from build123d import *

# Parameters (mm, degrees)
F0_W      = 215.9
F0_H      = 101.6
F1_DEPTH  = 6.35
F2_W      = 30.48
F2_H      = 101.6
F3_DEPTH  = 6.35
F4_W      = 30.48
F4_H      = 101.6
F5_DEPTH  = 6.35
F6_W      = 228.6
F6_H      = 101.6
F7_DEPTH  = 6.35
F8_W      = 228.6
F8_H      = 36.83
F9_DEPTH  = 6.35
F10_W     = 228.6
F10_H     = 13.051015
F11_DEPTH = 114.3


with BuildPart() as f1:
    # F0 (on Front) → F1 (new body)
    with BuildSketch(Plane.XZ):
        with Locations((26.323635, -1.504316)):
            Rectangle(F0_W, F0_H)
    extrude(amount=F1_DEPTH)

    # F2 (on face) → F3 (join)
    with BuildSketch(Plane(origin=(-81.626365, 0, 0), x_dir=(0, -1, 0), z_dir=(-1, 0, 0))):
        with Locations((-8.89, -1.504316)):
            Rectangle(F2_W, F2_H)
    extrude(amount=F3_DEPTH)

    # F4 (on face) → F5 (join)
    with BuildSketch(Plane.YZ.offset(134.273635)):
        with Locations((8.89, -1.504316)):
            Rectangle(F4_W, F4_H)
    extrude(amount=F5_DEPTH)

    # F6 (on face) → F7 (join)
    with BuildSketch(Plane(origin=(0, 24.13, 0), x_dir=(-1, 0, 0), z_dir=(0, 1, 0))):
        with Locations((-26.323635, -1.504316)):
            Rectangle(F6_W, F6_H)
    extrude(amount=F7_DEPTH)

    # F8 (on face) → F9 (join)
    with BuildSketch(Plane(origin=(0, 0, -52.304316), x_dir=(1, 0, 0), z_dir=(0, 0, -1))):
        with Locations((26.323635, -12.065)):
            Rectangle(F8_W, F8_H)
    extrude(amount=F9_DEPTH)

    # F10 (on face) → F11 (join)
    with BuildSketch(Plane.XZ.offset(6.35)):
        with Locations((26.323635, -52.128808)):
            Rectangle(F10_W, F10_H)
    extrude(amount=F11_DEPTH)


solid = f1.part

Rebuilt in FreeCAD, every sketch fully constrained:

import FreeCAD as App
import Part
import Sketcher
Q = App.Units.Quantity

doc = App.newDocument("Part")
body = doc.addObject("PartDesign::Body", "Body")

sketch1 = body.newObject("Sketcher::SketchObject", "Sketch")
sketch1.AttachmentSupport = (doc.getObject("XZ_Plane"), [""])
sketch1.MapMode = "FlatFace"
sketch1.addGeometry([
    Part.LineSegment(App.Vector(-82, 49, 0), App.Vector(-82, -52, 0)),
    Part.LineSegment(App.Vector(-82, -52, 0), App.Vector(134, -52, 0)),
    Part.LineSegment(App.Vector(134, -52, 0), App.Vector(134, 49, 0)),
    Part.LineSegment(App.Vector(134, 49, 0), App.Vector(-82, 49, 0)),
], False)
sketch1.addConstraint([
    Sketcher.Constraint("Coincident", 0, 2, 1, 1),
    Sketcher.Constraint("Coincident", 1, 2, 2, 1),
    Sketcher.Constraint("Coincident", 2, 2, 3, 1),
    Sketcher.Constraint("Coincident", 3, 2, 0, 1),
    Sketcher.Constraint("Vertical", 0),
    Sketcher.Constraint("Horizontal", 1),
    Sketcher.Constraint("Vertical", 2),
    Sketcher.Constraint("Horizontal", 3),
    Sketcher.Constraint("DistanceY", 0, 2, 0, 1, Q("4 in")),
    Sketcher.Constraint("DistanceX", 1, 1, 1, 2, Q("8.5 in")),
    Sketcher.Constraint("DistanceX", 0, 2, -1, 1, Q("81.626365 mm")),
    Sketcher.Constraint("DistanceY", 0, 2, -1, 1, Q("52.304316 mm")),
])
pad1 = body.newObject("PartDesign::Pad", "Pad")
pad1.Profile = sketch1
pad1.Length = Q("0.25 in")

sketch2 = body.newObject("Sketcher::SketchObject", "Sketch001")
sketch2.AttachmentSupport = (doc.getObject("YZ_Plane"), [""])
sketch2.MapMode = "FlatFace"
sketch2.AttachmentOffset = App.Placement(App.Vector(0, 0, -81.626365), App.Rotation())
sketch2.addGeometry([
    Part.LineSegment(App.Vector(24, 49, 0), App.Vector(24, -52, 0)),
    Part.LineSegment(App.Vector(24, -52, 0), App.Vector(-6, -52, 0)),
    Part.LineSegment(App.Vector(-6, -52, 0), App.Vector(-6, 49, 0)),
    Part.LineSegment(App.Vector(-6, 49, 0), App.Vector(24, 49, 0)),
], False)
sketch2.addConstraint([
    Sketcher.Constraint("Coincident", 0, 2, 1, 1),
    Sketcher.Constraint("Coincident", 1, 2, 2, 1),
    Sketcher.Constraint("Coincident", 2, 2, 3, 1),
    Sketcher.Constraint("Coincident", 3, 2, 0, 1),
    Sketcher.Constraint("Vertical", 0),
    Sketcher.Constraint("Horizontal", 1),
    Sketcher.Constraint("Vertical", 2),
    Sketcher.Constraint("Horizontal", 3),
    Sketcher.Constraint("DistanceY", 0, 2, 0, 1, Q("4 in")),
    Sketcher.Constraint("DistanceX", 1, 2, 1, 1, Q("1.2 in")),
    Sketcher.Constraint("DistanceX", -1, 1, 0, 2, Q("0.95 in")),
    Sketcher.Constraint("DistanceY", 0, 2, -1, 1, Q("52.304316 mm")),
])
pad2 = body.newObject("PartDesign::Pad", "Pad001")
pad2.Profile = sketch2
pad2.Length = Q("0.25 in")
pad2.Reversed = True

sketch3 = body.newObject("Sketcher::SketchObject", "Sketch002")
sketch3.AttachmentSupport = (doc.getObject("YZ_Plane"), [""])
sketch3.MapMode = "FlatFace"
sketch3.AttachmentOffset = App.Placement(App.Vector(0, 0, 134.273635), App.Rotation())
sketch3.addGeometry([
    Part.LineSegment(App.Vector(-6, 49, 0), App.Vector(-6, -52, 0)),
    Part.LineSegment(App.Vector(-6, -52, 0), App.Vector(24, -52, 0)),
    Part.LineSegment(App.Vector(24, -52, 0), App.Vector(24, 49, 0)),
    Part.LineSegment(App.Vector(24, 49, 0), App.Vector(-6, 49, 0)),
], False)
sketch3.addConstraint([
    Sketcher.Constraint("Coincident", 0, 2, 1, 1),
    Sketcher.Constraint("Coincident", 1, 2, 2, 1),
    Sketcher.Constraint("Coincident", 2, 2, 3, 1),
    Sketcher.Constraint("Coincident", 3, 2, 0, 1),
    Sketcher.Constraint("Vertical", 0),
    Sketcher.Constraint("Horizontal", 1),
    Sketcher.Constraint("Vertical", 2),
    Sketcher.Constraint("Horizontal", 3),
    Sketcher.Constraint("DistanceY", 0, 2, 0, 1, Q("4 in")),
    Sketcher.Constraint("DistanceX", 1, 1, 1, 2, Q("1.2 in")),
    Sketcher.Constraint("DistanceX", 0, 2, -1, 1, Q("0.25 in")),
    Sketcher.Constraint("DistanceY", 0, 2, -1, 1, Q("52.304316 mm")),
])
pad3 = body.newObject("PartDesign::Pad", "Pad002")
pad3.Profile = sketch3
pad3.Length = Q("0.25 in")

sketch4 = body.newObject("Sketcher::SketchObject", "Sketch003")
sketch4.AttachmentSupport = (doc.getObject("XZ_Plane"), [""])
sketch4.MapMode = "FlatFace"
sketch4.AttachmentOffset = App.Placement(App.Vector(0, 0, -0.95 * 25.4), App.Rotation())
sketch4.addGeometry([
    Part.LineSegment(App.Vector(141, 49, 0), App.Vector(141, -52, 0)),
    Part.LineSegment(App.Vector(141, -52, 0), App.Vector(-88, -52, 0)),
    Part.LineSegment(App.Vector(-88, -52, 0), App.Vector(-88, 49, 0)),
    Part.LineSegment(App.Vector(-88, 49, 0), App.Vector(141, 49, 0)),
], False)
sketch4.addConstraint([
    Sketcher.Constraint("Coincident", 0, 2, 1, 1),
    Sketcher.Constraint("Coincident", 1, 2, 2, 1),
    Sketcher.Constraint("Coincident", 2, 2, 3, 1),
    Sketcher.Constraint("Coincident", 3, 2, 0, 1),
    Sketcher.Constraint("Vertical", 0),
    Sketcher.Constraint("Horizontal", 1),
    Sketcher.Constraint("Vertical", 2),
    Sketcher.Constraint("Horizontal", 3),
    Sketcher.Constraint("DistanceX", 1, 2, 1, 1, Q("9 in")),
    Sketcher.Constraint("DistanceY", 0, 2, 0, 1, Q("4 in")),
    Sketcher.Constraint("DistanceX", -1, 1, 0, 2, Q("140.623635 mm")),
    Sketcher.Constraint("DistanceY", 0, 2, -1, 1, Q("52.304316 mm")),
])
pad4 = body.newObject("PartDesign::Pad", "Pad003")
pad4.Profile = sketch4
pad4.Length = Q("0.25 in")
pad4.Reversed = True

sketch5 = body.newObject("Sketcher::SketchObject", "Sketch004")
sketch5.AttachmentSupport = (doc.getObject("XY_Plane"), [""])
sketch5.MapMode = "FlatFace"
sketch5.AttachmentOffset = App.Placement(App.Vector(0, 0, -52.304316), App.Rotation())
sketch5.addGeometry([
    Part.LineSegment(App.Vector(-88, -6, 0), App.Vector(-88, 30, 0)),
    Part.LineSegment(App.Vector(-88, 30, 0), App.Vector(141, 30, 0)),
    Part.LineSegment(App.Vector(141, 30, 0), App.Vector(141, -6, 0)),
    Part.LineSegment(App.Vector(141, -6, 0), App.Vector(-88, -6, 0)),
], False)
sketch5.addConstraint([
    Sketcher.Constraint("Coincident", 0, 2, 1, 1),
    Sketcher.Constraint("Coincident", 1, 2, 2, 1),
    Sketcher.Constraint("Coincident", 2, 2, 3, 1),
    Sketcher.Constraint("Coincident", 3, 2, 0, 1),
    Sketcher.Constraint("Vertical", 0),
    Sketcher.Constraint("Horizontal", 1),
    Sketcher.Constraint("Vertical", 2),
    Sketcher.Constraint("Horizontal", 3),
    Sketcher.Constraint("DistanceX", 1, 1, 1, 2, Q("9 in")),
    Sketcher.Constraint("DistanceY", 0, 1, 0, 2, Q("1.45 in")),
    Sketcher.Constraint("DistanceY", -1, 1, 0, 2, Q("1.2 in")),
    Sketcher.Constraint("DistanceX", 0, 2, -1, 1, Q("87.976365 mm")),
])
pad5 = body.newObject("PartDesign::Pad", "Pad004")
pad5.Profile = sketch5
pad5.Length = Q("0.25 in")
pad5.Reversed = True

sketch6 = body.newObject("Sketcher::SketchObject", "Sketch005")
sketch6.AttachmentSupport = (doc.getObject("XZ_Plane"), [""])
sketch6.MapMode = "FlatFace"
sketch6.AttachmentOffset = App.Placement(App.Vector(0, 0, 0.25 * 25.4), App.Rotation())
sketch6.addGeometry([
    Part.LineSegment(App.Vector(-88, -46, 0), App.Vector(-88, -59, 0)),
    Part.LineSegment(App.Vector(-88, -59, 0), App.Vector(141, -59, 0)),
    Part.LineSegment(App.Vector(141, -59, 0), App.Vector(141, -46, 0)),
    Part.LineSegment(App.Vector(141, -46, 0), App.Vector(-88, -46, 0)),
], False)
sketch6.addConstraint([
    Sketcher.Constraint("Coincident", 0, 2, 1, 1),
    Sketcher.Constraint("Coincident", 1, 2, 2, 1),
    Sketcher.Constraint("Coincident", 2, 2, 3, 1),
    Sketcher.Constraint("Coincident", 3, 2, 0, 1),
    Sketcher.Constraint("Vertical", 0),
    Sketcher.Constraint("Horizontal", 1),
    Sketcher.Constraint("Vertical", 2),
    Sketcher.Constraint("Horizontal", 3),
    Sketcher.Constraint("DistanceX", 1, 1, 1, 2, Q("9 in")),
    Sketcher.Constraint("DistanceY", 2, 2, -1, 1, Q("45.603301 mm")),
    Sketcher.Constraint("DistanceY", 0, 2, 0, 1, Q("13.051015 mm")),
    Sketcher.Constraint("DistanceX", 0, 2, -1, 1, Q("87.976365 mm")),
])
pad6 = body.newObject("PartDesign::Pad", "Pad005")
pad6.Profile = sketch6
pad6.Length = Q("4.5 in")

doc.recompute()
